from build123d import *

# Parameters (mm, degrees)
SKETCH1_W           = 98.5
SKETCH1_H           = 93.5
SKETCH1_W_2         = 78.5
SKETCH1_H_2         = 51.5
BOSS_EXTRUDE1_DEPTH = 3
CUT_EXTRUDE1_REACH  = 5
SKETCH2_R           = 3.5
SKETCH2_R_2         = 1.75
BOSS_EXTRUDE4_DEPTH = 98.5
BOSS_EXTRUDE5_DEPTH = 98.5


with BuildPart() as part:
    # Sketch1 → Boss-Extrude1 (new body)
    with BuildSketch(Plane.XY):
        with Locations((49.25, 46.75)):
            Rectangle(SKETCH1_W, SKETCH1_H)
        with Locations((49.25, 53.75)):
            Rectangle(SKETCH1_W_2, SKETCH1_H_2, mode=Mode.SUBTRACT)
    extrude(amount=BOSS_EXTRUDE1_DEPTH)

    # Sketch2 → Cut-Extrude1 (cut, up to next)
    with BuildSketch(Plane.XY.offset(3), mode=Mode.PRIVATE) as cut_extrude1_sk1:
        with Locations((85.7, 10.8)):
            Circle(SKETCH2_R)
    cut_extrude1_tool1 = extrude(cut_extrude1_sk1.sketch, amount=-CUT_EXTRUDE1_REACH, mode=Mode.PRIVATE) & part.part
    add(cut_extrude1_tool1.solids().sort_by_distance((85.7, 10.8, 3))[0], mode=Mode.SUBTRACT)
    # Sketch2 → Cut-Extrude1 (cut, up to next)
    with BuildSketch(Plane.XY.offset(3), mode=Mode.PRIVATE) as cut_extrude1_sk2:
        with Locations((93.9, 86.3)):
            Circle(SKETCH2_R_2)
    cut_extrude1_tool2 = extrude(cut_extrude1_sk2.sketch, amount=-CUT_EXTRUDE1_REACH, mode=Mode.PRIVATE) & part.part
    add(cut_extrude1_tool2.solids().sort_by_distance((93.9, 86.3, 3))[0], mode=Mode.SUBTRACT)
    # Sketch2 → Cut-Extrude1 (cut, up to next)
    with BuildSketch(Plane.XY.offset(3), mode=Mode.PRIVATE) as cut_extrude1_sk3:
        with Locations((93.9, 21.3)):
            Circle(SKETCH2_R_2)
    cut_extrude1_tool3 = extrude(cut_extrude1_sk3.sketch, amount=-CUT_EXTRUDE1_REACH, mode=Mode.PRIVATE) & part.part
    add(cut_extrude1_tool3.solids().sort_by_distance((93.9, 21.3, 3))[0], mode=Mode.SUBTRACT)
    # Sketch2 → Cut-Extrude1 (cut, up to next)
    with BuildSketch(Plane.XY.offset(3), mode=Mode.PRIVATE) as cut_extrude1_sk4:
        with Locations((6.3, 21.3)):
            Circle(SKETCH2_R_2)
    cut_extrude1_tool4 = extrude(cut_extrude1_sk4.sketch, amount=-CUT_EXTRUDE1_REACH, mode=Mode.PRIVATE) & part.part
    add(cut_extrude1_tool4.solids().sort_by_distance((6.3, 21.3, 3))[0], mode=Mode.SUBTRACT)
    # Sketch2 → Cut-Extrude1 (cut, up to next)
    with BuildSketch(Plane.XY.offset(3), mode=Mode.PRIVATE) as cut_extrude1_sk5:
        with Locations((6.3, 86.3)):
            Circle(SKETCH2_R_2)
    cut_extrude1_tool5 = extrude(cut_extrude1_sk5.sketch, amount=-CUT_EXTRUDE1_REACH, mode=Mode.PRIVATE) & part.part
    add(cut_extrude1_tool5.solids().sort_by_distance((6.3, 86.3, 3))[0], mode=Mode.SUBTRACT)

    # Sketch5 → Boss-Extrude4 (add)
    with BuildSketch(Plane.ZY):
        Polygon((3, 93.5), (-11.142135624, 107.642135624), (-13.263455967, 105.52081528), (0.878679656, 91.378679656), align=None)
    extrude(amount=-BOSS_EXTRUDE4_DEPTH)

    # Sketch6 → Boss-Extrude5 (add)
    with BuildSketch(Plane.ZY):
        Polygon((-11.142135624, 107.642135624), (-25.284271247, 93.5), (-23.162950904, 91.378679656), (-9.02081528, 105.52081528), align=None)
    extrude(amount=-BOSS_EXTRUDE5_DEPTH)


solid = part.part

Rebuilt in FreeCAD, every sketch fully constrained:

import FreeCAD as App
import Part
import Sketcher
from FreeCAD import Vector
Q = App.Units.Quantity


def add_polygon(sketch, points):
    """Adds a closed chain of lines whose ends are joined by coincident constraints."""
    first, n = sketch.GeometryCount, len(points)
    for a, b in zip(points, points[1:] + points[:1]):
        sketch.addGeometry(Part.LineSegment(App.Vector(*a, 0), App.Vector(*b, 0)), False)
    for i in range(n):
        sketch.addConstraint(Sketcher.Constraint("Coincident", first + i, 2, first + (i + 1) % n, 1))

doc = App.newDocument("Part")
body = doc.addObject("PartDesign::Body", "Body")

# Sketch on XY plane
sketch1 = body.newObject("Sketcher::SketchObject", "Sketch")
sketch1.AttachmentSupport = (doc.getObject("XY_Plane"), [""])
sketch1.MapMode = "FlatFace"
add_polygon(sketch1, [(0, 93.5), (0, 0), (98.5, 0), (98.5, 93.5)])  # lines 0-3
add_polygon(sketch1, [(88.5, 28), (10, 28), (10, 79.5), (88.5, 79.5)])  # lines 4-7
sketch1.addConstraint(Sketcher.Constraint("Vertical", 0))
sketch1.addConstraint(Sketcher.Constraint("Horizontal", 1))
sketch1.addConstraint(Sketcher.Constraint("Vertical", 2))
sketch1.addConstraint(Sketcher.Constraint("Horizontal", 3))
sketch1.addConstraint(Sketcher.Constraint("Horizontal", 4))
sketch1.addConstraint(Sketcher.Constraint("Vertical", 5))
sketch1.addConstraint(Sketcher.Constraint("Horizontal", 6))
sketch1.addConstraint(Sketcher.Constraint("Vertical", 7))
sketch1.addConstraint(Sketcher.Constraint("Coincident", 0, 2, -1, 1))
sketch1.addConstraint(Sketcher.Constraint("DistanceX", 1, 1, 1, 2, 98.5))
sketch1.addConstraint(Sketcher.Constraint("DistanceX", 4, 2, 4, 1, 78.5))
sketch1.addConstraint(Sketcher.Constraint("DistanceY", 0, 2, 0, 1, 93.5))
sketch1.addConstraint(Sketcher.Constraint("DistanceY", 5, 1, 5, 2, 51.5))
sketch1.addConstraint(Sketcher.Constraint("DistanceX", -1, 1, 4, 2, 10.0))
sketch1.addConstraint(Sketcher.Constraint("DistanceY", -1, 1, 4, 2, 28.0))
pad1 = body.newObject("PartDesign::Pad", "Pad")
pad1.Profile = sketch1
pad1.Length = 3

# Sketch on XY plane
sketch2 = body.newObject("Sketcher::SketchObject", "Sketch001")
sketch2.AttachmentSupport = (doc.getObject("XY_Plane"), [""])
sketch2.MapMode = "FlatFace"
sketch2.AttachmentOffset = App.Placement(Vector(0, 0, 3), App.Rotation())
sketch2.addGeometry(Part.Circle(Vector(85.7, 10.8, 0), Vector(0, 0, 1), 3.5), False)
sketch2.addConstraint(Sketcher.Constraint("Diameter", 0, 7.0))
sketch2.addConstraint(Sketcher.Constraint("DistanceX", -1, 1, 0, 3, 85.7))
sketch2.addConstraint(Sketcher.Constraint("DistanceY", -1, 1, 0, 3, 10.8))
pocket1 = body.newObject("PartDesign::Pocket", "Pocket")
pocket1.Profile = sketch2
pocket1.Type = "UpToFirst"

# Sketch on XY plane
sketch3 = body.newObject("Sketcher::SketchObject", "Sketch002")
sketch3.AttachmentSupport = (doc.getObject("XY_Plane"), [""])
sketch3.MapMode = "FlatFace"
sketch3.AttachmentOffset = App.Placement(Vector(0, 0, 3), App.Rotation())
sketch3.addGeometry(Part.Circle(Vector(93.9, 86.3, 0), Vector(0, 0, 1), 1.75), False)
sketch3.addConstraint(Sketcher.Constraint("Diameter", 0, 3.5))
sketch3.addConstraint(Sketcher.Constraint("DistanceX", -1, 1, 0, 3, 93.9))
sketch3.addConstraint(Sketcher.Constraint("DistanceY", -1, 1, 0, 3, 86.3))
pocket2 = body.newObject("PartDesign::Pocket", "Pocket001")
pocket2.Profile = sketch3
pocket2.Type = "UpToFirst"

# Sketch on XY plane
sketch4 = body.newObject("Sketcher::SketchObject", "Sketch003")
sketch4.AttachmentSupport = (doc.getObject("XY_Plane"), [""])
sketch4.MapMode = "FlatFace"
sketch4.AttachmentOffset = App.Placement(Vector(0, 0, 3), App.Rotation())
sketch4.addGeometry(Part.Circle(Vector(93.9, 21.3, 0), Vector(0, 0, 1), 1.75), False)
sketch4.addConstraint(Sketcher.Constraint("Diameter", 0, 3.5))
sketch4.addConstraint(Sketcher.Constraint("DistanceX", -1, 1, 0, 3, 93.9))
sketch4.addConstraint(Sketcher.Constraint("DistanceY", -1, 1, 0, 3, 21.3))
pocket3 = body.newObject("PartDesign::Pocket", "Pocket002")
pocket3.Profile = sketch4
pocket3.Type = "UpToFirst"

# Sketch on XY plane
sketch5 = body.newObject("Sketcher::SketchObject", "Sketch004")
sketch5.AttachmentSupport = (doc.getObject("XY_Plane"), [""])
sketch5.MapMode = "FlatFace"
sketch5.AttachmentOffset = App.Placement(Vector(0, 0, 3), App.Rotation())
sketch5.addGeometry(Part.Circle(Vector(6.3, 21.3, 0), Vector(0, 0, 1), 1.75), False)
sketch5.addConstraint(Sketcher.Constraint("Diameter", 0, 3.5))
sketch5.addConstraint(Sketcher.Constraint("DistanceX", -1, 1, 0, 3, 6.3))
sketch5.addConstraint(Sketcher.Constraint("DistanceY", -1, 1, 0, 3, 21.3))
pocket4 = body.newObject("PartDesign::Pocket", "Pocket003")
pocket4.Profile = sketch5
pocket4.Type = "UpToFirst"

# Sketch on XY plane
sketch6 = body.newObject("Sketcher::SketchObject", "Sketch005")
sketch6.AttachmentSupport = (doc.getObject("XY_Plane"), [""])
sketch6.MapMode = "FlatFace"
sketch6.AttachmentOffset = App.Placement(Vector(0, 0, 3), App.Rotation())
sketch6.addGeometry(Part.Circle(Vector(6.3, 86.3, 0), Vector(0, 0, 1), 1.75), False)
sketch6.addConstraint(Sketcher.Constraint("Diameter", 0, 3.5))
sketch6.addConstraint(Sketcher.Constraint("DistanceX", -1, 1, 0, 3, 6.3))
sketch6.addConstraint(Sketcher.Constraint("DistanceY", -1, 1, 0, 3, 86.3))
pocket5 = body.newObject("PartDesign::Pocket", "Pocket004")
pocket5.Profile = sketch6
pocket5.Type = "UpToFirst"

# Sketch on YZ plane
sketch7 = body.newObject("Sketcher::SketchObject", "Sketch006")
sketch7.AttachmentSupport = (doc.getObject("YZ_Plane"), [""])
sketch7.MapMode = "FlatFace"
add_polygon(sketch7, [(93.5, 3), (107.642136, -11.142136), (105.520815, -13.263456), (91.37868, 0.87868)])  # lines 0-3
sketch7.addConstraint(Sketcher.Constraint("Perpendicular", 0, 1))
sketch7.addConstraint(Sketcher.Constraint("Perpendicular", 1, 2))
sketch7.addConstraint(Sketcher.Constraint("Perpendicular", 2, 3))
sketch7.addConstraint(Sketcher.Constraint("Angle", 0, Q("-45 deg")))
sketch7.addConstraint(Sketcher.Constraint("Distance", 0, 20.0))
sketch7.addConstraint(Sketcher.Constraint("Distance", 1, 3.0))
sketch7.addConstraint(Sketcher.Constraint("DistanceY", -1, 1, 3, 2, 3.0))
sketch7.addConstraint(Sketcher.Constraint("DistanceX", -1, 1, 3, 2, 93.5))
pad2 = body.newObject("PartDesign::Pad", "Pad001")
pad2.Profile = sketch7
pad2.Length = 98.5

# Sketch on YZ plane
sketch8 = body.newObject("Sketcher::SketchObject", "Sketch007")
sketch8.AttachmentSupport = (doc.getObject("YZ_Plane"), [""])
sketch8.MapMode = "FlatFace"
add_polygon(sketch8, [(107.642136, -11.142136), (93.5, -25.284271), (91.37868, -23.162951), (105.520815, -9.020815)])  # lines 0-3
sketch8.addConstraint(Sketcher.Constraint("Perpendicular", 0, 1))
sketch8.addConstraint(Sketcher.Constraint("Perpendicular", 1, 2))
sketch8.addConstraint(Sketcher.Constraint("Perpendicular", 2, 3))
sketch8.addConstraint(Sketcher.Constraint("Angle", 0, Q("-135 deg")))
sketch8.addConstraint(Sketcher.Constraint("Distance", 0, 20.0))
sketch8.addConstraint(Sketcher.Constraint("Distance", 1, 3.0))
sketch8.addConstraint(Sketcher.Constraint("DistanceX", -1, 1, 0, 2, 93.5))
sketch8.addConstraint(Sketcher.Constraint("DistanceY", 0, 2, -1, 1, 25.284271))
pad3 = body.newObject("PartDesign::Pad", "Pad002")
pad3.Profile = sketch8
pad3.Length = 98.5

doc.recompute()
